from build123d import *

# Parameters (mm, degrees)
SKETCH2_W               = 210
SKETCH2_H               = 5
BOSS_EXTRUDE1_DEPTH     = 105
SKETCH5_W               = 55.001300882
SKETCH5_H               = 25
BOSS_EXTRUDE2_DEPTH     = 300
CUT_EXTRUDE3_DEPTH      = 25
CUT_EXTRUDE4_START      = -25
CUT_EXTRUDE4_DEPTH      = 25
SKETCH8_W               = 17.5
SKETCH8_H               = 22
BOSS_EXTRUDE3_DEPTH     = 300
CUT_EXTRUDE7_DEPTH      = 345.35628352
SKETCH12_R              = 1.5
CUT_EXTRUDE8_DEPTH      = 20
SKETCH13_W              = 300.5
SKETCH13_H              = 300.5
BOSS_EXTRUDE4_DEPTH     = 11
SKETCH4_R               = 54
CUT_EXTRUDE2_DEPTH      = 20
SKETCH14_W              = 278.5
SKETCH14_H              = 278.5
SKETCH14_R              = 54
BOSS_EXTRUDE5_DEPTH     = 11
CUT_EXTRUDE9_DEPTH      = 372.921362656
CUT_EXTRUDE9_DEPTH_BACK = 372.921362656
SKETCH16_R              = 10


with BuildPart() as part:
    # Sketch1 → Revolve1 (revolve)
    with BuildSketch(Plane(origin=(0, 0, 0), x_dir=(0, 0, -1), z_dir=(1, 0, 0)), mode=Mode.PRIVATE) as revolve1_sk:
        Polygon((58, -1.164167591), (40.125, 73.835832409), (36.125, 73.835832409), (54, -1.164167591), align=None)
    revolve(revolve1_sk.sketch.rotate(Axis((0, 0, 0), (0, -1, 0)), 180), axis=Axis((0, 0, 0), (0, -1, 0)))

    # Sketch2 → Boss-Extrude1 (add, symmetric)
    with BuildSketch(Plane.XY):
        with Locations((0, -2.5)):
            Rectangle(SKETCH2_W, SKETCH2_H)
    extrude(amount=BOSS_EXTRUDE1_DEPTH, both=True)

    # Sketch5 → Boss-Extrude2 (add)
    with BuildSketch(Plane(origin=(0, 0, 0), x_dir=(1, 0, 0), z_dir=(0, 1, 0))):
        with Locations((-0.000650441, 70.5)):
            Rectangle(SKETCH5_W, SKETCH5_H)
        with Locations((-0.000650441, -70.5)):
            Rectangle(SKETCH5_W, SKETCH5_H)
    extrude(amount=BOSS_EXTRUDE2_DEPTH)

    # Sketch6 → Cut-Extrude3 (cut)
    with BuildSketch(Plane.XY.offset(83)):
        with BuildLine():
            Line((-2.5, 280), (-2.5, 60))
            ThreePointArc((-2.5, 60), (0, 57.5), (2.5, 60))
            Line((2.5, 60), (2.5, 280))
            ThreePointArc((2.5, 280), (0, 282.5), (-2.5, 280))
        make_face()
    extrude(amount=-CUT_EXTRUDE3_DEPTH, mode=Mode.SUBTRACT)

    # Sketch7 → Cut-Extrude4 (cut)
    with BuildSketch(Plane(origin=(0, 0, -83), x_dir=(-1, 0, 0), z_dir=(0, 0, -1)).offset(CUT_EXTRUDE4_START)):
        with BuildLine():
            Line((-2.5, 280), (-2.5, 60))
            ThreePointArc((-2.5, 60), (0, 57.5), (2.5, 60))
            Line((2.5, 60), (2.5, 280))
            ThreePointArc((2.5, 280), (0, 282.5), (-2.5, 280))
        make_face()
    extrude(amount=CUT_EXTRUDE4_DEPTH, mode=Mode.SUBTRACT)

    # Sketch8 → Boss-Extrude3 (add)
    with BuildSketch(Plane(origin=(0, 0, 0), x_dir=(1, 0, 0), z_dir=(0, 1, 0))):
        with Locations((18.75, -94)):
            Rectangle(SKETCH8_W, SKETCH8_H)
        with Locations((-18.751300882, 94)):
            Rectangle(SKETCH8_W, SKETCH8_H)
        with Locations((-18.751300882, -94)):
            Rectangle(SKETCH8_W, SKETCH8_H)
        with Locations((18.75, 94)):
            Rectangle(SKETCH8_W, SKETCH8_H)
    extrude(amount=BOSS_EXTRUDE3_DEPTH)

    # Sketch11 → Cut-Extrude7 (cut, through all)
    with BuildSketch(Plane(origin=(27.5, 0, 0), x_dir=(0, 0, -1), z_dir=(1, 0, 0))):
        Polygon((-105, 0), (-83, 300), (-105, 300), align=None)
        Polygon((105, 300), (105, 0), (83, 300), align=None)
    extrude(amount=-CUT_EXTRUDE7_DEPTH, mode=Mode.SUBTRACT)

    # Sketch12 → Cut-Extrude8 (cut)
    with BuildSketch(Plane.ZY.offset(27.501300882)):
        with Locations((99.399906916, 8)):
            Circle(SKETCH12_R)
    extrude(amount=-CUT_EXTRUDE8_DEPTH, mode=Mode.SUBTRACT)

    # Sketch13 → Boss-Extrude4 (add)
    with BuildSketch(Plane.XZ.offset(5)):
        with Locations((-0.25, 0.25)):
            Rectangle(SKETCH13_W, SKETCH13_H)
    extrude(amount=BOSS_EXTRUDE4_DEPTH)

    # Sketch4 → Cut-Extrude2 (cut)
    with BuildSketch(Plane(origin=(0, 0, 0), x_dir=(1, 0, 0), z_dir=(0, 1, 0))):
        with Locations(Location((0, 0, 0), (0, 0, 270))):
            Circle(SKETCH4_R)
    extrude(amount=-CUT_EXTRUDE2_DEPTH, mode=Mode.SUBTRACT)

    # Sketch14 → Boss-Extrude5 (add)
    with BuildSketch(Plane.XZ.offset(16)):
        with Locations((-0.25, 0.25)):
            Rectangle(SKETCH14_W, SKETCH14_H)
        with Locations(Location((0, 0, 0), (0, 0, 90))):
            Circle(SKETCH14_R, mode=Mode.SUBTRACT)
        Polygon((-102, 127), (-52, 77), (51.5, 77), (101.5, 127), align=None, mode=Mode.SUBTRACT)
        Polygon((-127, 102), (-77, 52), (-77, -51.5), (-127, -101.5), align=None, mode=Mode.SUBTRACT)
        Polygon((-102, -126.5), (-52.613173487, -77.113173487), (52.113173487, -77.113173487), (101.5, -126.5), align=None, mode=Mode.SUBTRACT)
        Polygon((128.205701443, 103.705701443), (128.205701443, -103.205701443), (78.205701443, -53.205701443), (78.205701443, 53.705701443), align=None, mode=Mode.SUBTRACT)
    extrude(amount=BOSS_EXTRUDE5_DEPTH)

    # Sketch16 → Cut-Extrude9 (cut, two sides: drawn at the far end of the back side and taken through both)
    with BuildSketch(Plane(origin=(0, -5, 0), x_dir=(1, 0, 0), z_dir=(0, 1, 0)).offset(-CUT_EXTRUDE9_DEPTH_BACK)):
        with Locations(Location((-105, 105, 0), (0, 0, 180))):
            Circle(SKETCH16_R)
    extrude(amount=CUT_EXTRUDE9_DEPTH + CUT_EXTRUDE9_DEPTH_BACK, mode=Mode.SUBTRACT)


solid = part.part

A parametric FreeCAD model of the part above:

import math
import FreeCAD as App
import Part
import Sketcher


def add_polygon(sketch, points):
    """Adds a closed chain of lines whose ends are joined by coincident constraints."""
    first, n = sketch.GeometryCount, len(points)
    for a, b in zip(points, points[1:] + points[:1]):
        sketch.addGeometry(Part.LineSegment(App.Vector(*a, 0), App.Vector(*b, 0)), False)
    for i in range(n):
        sketch.addConstraint(Sketcher.Constraint("Coincident", first + i, 2, first + (i + 1) % n, 1))

doc = App.newDocument("Part")
body = doc.addObject("PartDesign::Body", "Body")

# Sketch on YZ plane
sketch1 = body.newObject("Sketcher::SketchObject", "Sketch")
sketch1.AttachmentSupport = (doc.getObject("YZ_Plane"), [""])
sketch1.MapMode = "FlatFace"
add_polygon(sketch1, [(-1.164168, -58), (73.835832, -40.125), (73.835832, -36.125), (-1.164168, -54)])  # lines 0-3
sketch1.addConstraint(Sketcher.Constraint("Vertical", 1))
sketch1.addConstraint(Sketcher.Constraint("Vertical", 3))
sketch1.addConstraint(Sketcher.Constraint("Parallel", 0, 2))
sketch1.addConstraint(Sketcher.Constraint("DistanceY", 1, 1, 1, 2, 4.0))
sketch1.addConstraint(Sketcher.Constraint("DistanceY", 2, 2, -1, 1, 54.0))
sketch1.addConstraint(Sketcher.Constraint("DistanceX", 2, 2, 0, 2, 75.0))
sketch1.addConstraint(Sketcher.Constraint("DistanceY", 0, 2, -1, 1, 40.125))
sketch1.addConstraint(Sketcher.Constraint("DistanceX", -1, 1, 0, 2, 73.835832))
revolution = body.newObject("PartDesign::Revolution", "Revolution")
revolution.Profile = sketch1
revolution.ReferenceAxis = (sketch1, ["H_Axis"])
revolution.Angle = 360

# Sketch on XY plane
sketch2 = body.newObject("Sketcher::SketchObject", "Sketch001")
sketch2.AttachmentSupport = (doc.getObject("XY_Plane"), [""])
sketch2.MapMode = "FlatFace"
add_polygon(sketch2, [(-105, 0), (-105, -5), (105, -5), (105, 0)])  # lines 0-3
sketch2.addConstraint(Sketcher.Constraint("Vertical", 0))
sketch2.addConstraint(Sketcher.Constraint("Horizontal", 1))
sketch2.addConstraint(Sketcher.Constraint("Vertical", 2))
sketch2.addConstraint(Sketcher.Constraint("Horizontal", 3))
sketch2.addConstraint(Sketcher.Constraint("Symmetric", 2, 2, 3, 2, -1, 1))
sketch2.addConstraint(Sketcher.Constraint("DistanceX", 1, 1, 1, 2, 210.0))
sketch2.addConstraint(Sketcher.Constraint("DistanceY", 0, 2, 0, 1, 5.0))
pad1 = body.newObject("PartDesign::Pad", "Pad")
pad1.Profile = sketch2
pad1.Length = 210
pad1.Midplane = True

# Sketch on XZ plane
sketch3 = body.newObject("Sketcher::SketchObject", "Sketch002")
sketch3.AttachmentSupport = (doc.getObject("XZ_Plane"), [""])
sketch3.MapMode = "FlatFace"
add_polygon(sketch3, [(-27.501301, -83), (-27.501301, -58), (27.5, -58), (27.5, -83)])  # lines 0-3
add_polygon(sketch3, [(-27.501301, 58), (-27.501301, 83), (27.5, 83), (27.5, 58)])  # lines 4-7
sketch3.addConstraint(Sketcher.Constraint("Vertical", 0))
sketch3.addConstraint(Sketcher.Constraint("Horizontal", 1))
sketch3.addConstraint(Sketcher.Constraint("Vertical", 2))
sketch3.addConstraint(Sketcher.Constraint("Horizontal", 3))
sketch3.addConstraint(Sketcher.Constraint("Vertical", 4))
sketch3.addConstraint(Sketcher.Constraint("Horizontal", 5))
sketch3.addConstraint(Sketcher.Constraint("Vertical", 6))
sketch3.addConstraint(Sketcher.Constraint("Horizontal", 7))
sketch3.addConstraint(Sketcher.Constraint("Symmetric", 3, 2, 4, 2, -1))
sketch3.addConstraint(Sketcher.Constraint("Symmetric", 1, 2, 6, 2, -1))
sketch3.addConstraint(Sketcher.Constraint("DistanceY", 0, 1, 0, 2, 25.0))
sketch3.addConstraint(Sketcher.Constraint("DistanceY", 0, 2, -1, 1, 58.0))
sketch3.addConstraint(Sketcher.Constraint("DistanceX", -1, 1, 1, 2, 27.5))
sketch3.addConstraint(Sketcher.Constraint("DistanceX", 1, 1, 1, 2, 55.001301))
pad2 = body.newObject("PartDesign::Pad", "Pad001")
pad2.Profile = sketch3
pad2.Length = 300
pad2.Reversed = True

# Sketch on XY plane
sketch4 = body.newObject("Sketcher::SketchObject", "Sketch003")
sketch4.AttachmentSupport = (doc.getObject("XY_Plane"), [""])
sketch4.MapMode = "FlatFace"
sketch4.AttachmentOffset = App.Placement(App.Vector(0, 0, 83), App.Rotation())
sketch4.addGeometry(Part.LineSegment(App.Vector(-2.5, 280, 0), App.Vector(-2.5, 60, 0)), False)
sketch4.addGeometry(Part.ArcOfCircle(Part.Circle(App.Vector(0, 60, 0), App.Vector(0, 0, 1), 2.5), math.radians(180), math.radians(360)), False)
sketch4.addGeometry(Part.LineSegment(App.Vector(2.5, 60, 0), App.Vector(2.5, 280, 0)), False)
sketch4.addGeometry(Part.ArcOfCircle(Part.Circle(App.Vector(0, 280, 0), App.Vector(0, 0, 1), 2.5), math.radians(0), math.radians(180)), False)
sketch4.addConstraint(Sketcher.Constraint("Tangent", 0, 2, 1, 1))
sketch4.addConstraint(Sketcher.Constraint("Tangent", 1, 2, 2, 1))
sketch4.addConstraint(Sketcher.Constraint("Tangent", 2, 2, 3, 1))
sketch4.addConstraint(Sketcher.Constraint("Tangent", 3, 2, 0, 1))
sketch4.addConstraint(Sketcher.Constraint("Vertical", 0))
sketch4.addConstraint(Sketcher.Constraint("Vertical", 2))
sketch4.addConstraint(Sketcher.Constraint("PointOnObject", 1, 3, -2))
sketch4.addConstraint(Sketcher.Constraint("Radius", 1, 2.5))
sketch4.addConstraint(Sketcher.Constraint("DistanceY", 0, 2, 0, 1, 220.0))
sketch4.addConstraint(Sketcher.Constraint("DistanceY", -1, 1, 1, 3, 60.0))
pocket1 = body.newObject("PartDesign::Pocket", "Pocket")
pocket1.Profile = sketch4
pocket1.Length = 25

# Sketch on XY plane
sketch5 = body.newObject("Sketcher::SketchObject", "Sketch004")
sketch5.AttachmentSupport = (doc.getObject("XY_Plane"), [""])
sketch5.MapMode = "FlatFace"
sketch5.AttachmentOffset = App.Placement(App.Vector(0, 0, -58), App.Rotation())
sketch5.addGeometry(Part.LineSegment(App.Vector(2.5, 280, 0), App.Vector(2.5, 60, 0)), False)
sketch5.addGeometry(Part.ArcOfCircle(Part.Circle(App.Vector(0, 60, 0), App.Vector(0, 0, 1), 2.5), math.radians(180), math.radians(360)), False)
sketch5.addGeometry(Part.LineSegment(App.Vector(-2.5, 60, 0), App.Vector(-2.5, 280, 0)), False)
sketch5.addGeometry(Part.ArcOfCircle(Part.Circle(App.Vector(0, 280, 0), App.Vector(0, 0, 1), 2.5), math.radians(0), math.radians(180)), False)
sketch5.addConstraint(Sketcher.Constraint("Tangent", 0, 2, 1, 2))
sketch5.addConstraint(Sketcher.Constraint("Tangent", 1, 1, 2, 1))
sketch5.addConstraint(Sketcher.Constraint("Tangent", 2, 2, 3, 2))
sketch5.addConstraint(Sketcher.Constraint("Tangent", 3, 1, 0, 1))
sketch5.addConstraint(Sketcher.Constraint("Vertical", 0))
sketch5.addConstraint(Sketcher.Constraint("Vertical", 2))
sketch5.addConstraint(Sketcher.Constraint("PointOnObject", 1, 3, -2))
sketch5.addConstraint(Sketcher.Constraint("Radius", 1, 2.5))
sketch5.addConstraint(Sketcher.Constraint("DistanceY", 0, 2, 0, 1, 220.0))
sketch5.addConstraint(Sketcher.Constraint("DistanceY", -1, 1, 1, 3, 60.0))
pocket2 = body.newObject("PartDesign::Pocket", "Pocket001")
pocket2.Profile = sketch5
pocket2.Length = 25

# Sketch on XZ plane
sketch6 = body.newObject("Sketcher::SketchObject", "Sketch005")
sketch6.AttachmentSupport = (doc.getObject("XZ_Plane"), [""])
sketch6.MapMode = "FlatFace"
add_polygon(sketch6, [(10, 83), (10, 105), (27.5, 105), (27.5, 83)])  # lines 0-3
add_polygon(sketch6, [(-27.501301, -105), (-27.501301, -83), (-10.001301, -83), (-10.001301, -105)])  # lines 4-7
add_polygon(sketch6, [(-27.501301, 83), (-27.501301, 105), (-10.001301, 105), (-10.001301, 83)])  # lines 8-11
add_polygon(sketch6, [(10, -105), (10, -83), (27.5, -83), (27.5, -105)])  # lines 12-15
sketch6.addConstraint(Sketcher.Constraint("Vertical", 0))
sketch6.addConstraint(Sketcher.Constraint("Horizontal", 1))
sketch6.addConstraint(Sketcher.Constraint("Vertical", 2))
sketch6.addConstraint(Sketcher.Constraint("Horizontal", 3))
sketch6.addConstraint(Sketcher.Constraint("Vertical", 4))
sketch6.addConstraint(Sketcher.Constraint("Horizontal", 5))
sketch6.addConstraint(Sketcher.Constraint("Vertical", 6))
sketch6.addConstraint(Sketcher.Constraint("Horizontal", 7))
sketch6.addConstraint(Sketcher.Constraint("Vertical", 8))
sketch6.addConstraint(Sketcher.Constraint("Horizontal", 9))
sketch6.addConstraint(Sketcher.Constraint("Vertical", 10))
sketch6.addConstraint(Sketcher.Constraint("Horizontal", 11))
sketch6.addConstraint(Sketcher.Constraint("Vertical", 12))
sketch6.addConstraint(Sketcher.Constraint("Horizontal", 13))
sketch6.addConstraint(Sketcher.Constraint("Vertical", 14))
sketch6.addConstraint(Sketcher.Constraint("Horizontal", 15))
sketch6.addConstraint(Sketcher.Constraint("Symmetric", 7, 2, 8, 2, -1))
sketch6.addConstraint(Sketcher.Constraint("Symmetric", 5, 2, 10, 2, -1))
sketch6.addConstraint(Sketcher.Constraint("Symmetric", 3, 2, 12, 2, -1))
sketch6.addConstraint(Sketcher.Constraint("Symmetric", 1, 2, 14, 2, -1))
sketch6.addConstraint(Sketcher.Constraint("Horizontal", 1, 2, 8, 2))
sketch6.addConstraint(Sketcher.Constraint("Horizontal", 3, 2, 10, 2))
sketch6.addConstraint(Sketcher.Constraint("Equal", 3, 5))
sketch6.addConstraint(Sketcher.Constraint("DistanceY", 0, 1, 0, 2, 22.0))
sketch6.addConstraint(Sketcher.Constraint("DistanceX", 1, 1, 1, 2, 17.5))
sketch6.addConstraint(Sketcher.Constraint("DistanceX", -1, 1, 0, 2, 10.0))
sketch6.addConstraint(Sketcher.Constraint("DistanceY", -1, 1, 0, 2, 105.0))
sketch6.addConstraint(Sketcher.Constraint("DistanceX", 4, 2, -1, 1, 27.501301))
pad3 = body.newObject("PartDesign::Pad", "Pad002")
pad3.Profile = sketch6
pad3.Length = 300
pad3.Reversed = True

# Sketch on YZ plane
sketch7 = body.newObject("Sketcher::SketchObject", "Sketch006")
sketch7.AttachmentSupport = (doc.getObject("YZ_Plane"), [""])
sketch7.MapMode = "FlatFace"
sketch7.AttachmentOffset = App.Placement(App.Vector(0, 0, 27.5), App.Rotation())
add_polygon(sketch7, [(0, 105), (300, 83), (300, 105)])  # lines 0-2
add_polygon(sketch7, [(0, -105), (300, -105), (300, -83)])  # lines 3-5
sketch7.addConstraint(Sketcher.Constraint("Vertical", 1))
sketch7.addConstraint(Sketcher.Constraint("Horizontal", 2))
sketch7.addConstraint(Sketcher.Constraint("Horizontal", 3))
sketch7.addConstraint(Sketcher.Constraint("Vertical", 4))
sketch7.addConstraint(Sketcher.Constraint("Symmetric", 2, 2, 5, 2, -1, 1))
sketch7.addConstraint(Sketcher.Constraint("Symmetric", 0, 2, 4, 2, -1))
sketch7.addConstraint(Sketcher.Constraint("PointOnObject", 2, 2, -2))
sketch7.addConstraint(Sketcher.Constraint("DistanceX", 2, 2, 2, 1, 300.0))
sketch7.addConstraint(Sketcher.Constraint("DistanceY", 1, 1, 1, 2, 22.0))
sketch7.addConstraint(Sketcher.Constraint("DistanceY", -1, 1, 0, 2, 83.0))
pocket3 = body.newObject("PartDesign::Pocket", "Pocket002")
pocket3.Profile = sketch7
pocket3.Type = "ThroughAll"

# Sketch on YZ plane
sketch8 = body.newObject("Sketcher::SketchObject", "Sketch007")
sketch8.AttachmentSupport = (doc.getObject("YZ_Plane"), [""])
sketch8.MapMode = "FlatFace"
sketch8.AttachmentOffset = App.Placement(App.Vector(0, 0, -27.501301), App.Rotation())
sketch8.addGeometry(Part.Circle(App.Vector(8, 99.399907, 0), App.Vector(0, 0, 1), 1.5), False)
sketch8.addConstraint(Sketcher.Constraint("Diameter", 0, 3.0))
sketch8.addConstraint(Sketcher.Constraint("DistanceX", -1, 1, 0, 3, 8.0))
sketch8.addConstraint(Sketcher.Constraint("DistanceY", -1, 1, 0, 3, 99.399907))
pocket4 = body.newObject("PartDesign::Pocket", "Pocket003")
pocket4.Profile = sketch8
pocket4.Length = 20
pocket4.Reversed = True

# Sketch on XZ plane
sketch9 = body.newObject("Sketcher::SketchObject", "Sketch008")
sketch9.AttachmentSupport = (doc.getObject("XZ_Plane"), [""])
sketch9.MapMode = "FlatFace"
sketch9.AttachmentOffset = App.Placement(App.Vector(0, 0, 5), App.Rotation())
add_polygon(sketch9, [(-150.5, 150.5), (-150.5, -150), (150, -150), (150, 150.5)])  # lines 0-3
sketch9.addConstraint(Sketcher.Constraint("Vertical", 0))
sketch9.addConstraint(Sketcher.Constraint("Horizontal", 1))
sketch9.addConstraint(Sketcher.Constraint("Vertical", 2))
sketch9.addConstraint(Sketcher.Constraint("Horizontal", 3))
sketch9.addConstraint(Sketcher.Constraint("Equal", 3, 0))
sketch9.addConstraint(Sketcher.Constraint("DistanceX", 1, 1, 1, 2, 300.5))
sketch9.addConstraint(Sketcher.Constraint("DistanceY", 0, 2, -1, 1, 150.0))
sketch9.addConstraint(Sketcher.Constraint("DistanceX", -1, 1, 1, 2, 150.0))
pad4 = body.newObject("PartDesign::Pad", "Pad003")
pad4.Profile = sketch9
pad4.Length = 11

# Sketch on XZ plane
sketch10 = body.newObject("Sketcher::SketchObject", "Sketch009")
sketch10.AttachmentSupport = (doc.getObject("XZ_Plane"), [""])
sketch10.MapMode = "FlatFace"
sketch10.addGeometry(Part.Circle(App.Vector(0, 0, 0), App.Vector(0, 0, 1), 54), False)
sketch10.addConstraint(Sketcher.Constraint("Coincident", 0, 3, -1, 1))
sketch10.addConstraint(Sketcher.Constraint("Diameter", 0, 108.0))
pocket5 = body.newObject("PartDesign::Pocket", "Pocket004")
pocket5.Profile = sketch10
pocket5.Length = 20
pocket5.Reversed = True

# Sketch on XZ plane
sketch11 = body.newObject("Sketcher::SketchObject", "Sketch010")
sketch11.AttachmentSupport = (doc.getObject("XZ_Plane"), [""])
sketch11.MapMode = "FlatFace"
sketch11.AttachmentOffset = App.Placement(App.Vector(0, 0, 16), App.Rotation())
add_polygon(sketch11, [(-139.5, 139.5), (-139.5, -139), (139, -139), (139, 139.5)])  # lines 0-3
add_polygon(sketch11, [(101.5, -126.5), (-102, -126.5), (-52.613173, -77.113173), (52.113173, -77.113173)])  # lines 4-7
sketch11.addGeometry(Part.Circle(App.Vector(0, 0, 0), App.Vector(0, 0, 1), 54), False)  # 8
add_polygon(sketch11, [(-127, -101.5), (-127, 102), (-77, 52), (-77, -51.5)])  # lines 9-12
add_polygon(sketch11, [(-52, 77), (-102, 127), (101.5, 127), (51.5, 77)])  # lines 13-16
add_polygon(sketch11, [(78.205701, 53.705701), (128.205701, 103.705701), (128.205701, -103.205701), (78.205701, -53.205701)])  # lines 17-20
sketch11.addConstraint(Sketcher.Constraint("Vertical", 0))
sketch11.addConstraint(Sketcher.Constraint("Horizontal", 1))
sketch11.addConstraint(Sketcher.Constraint("Vertical", 2))
sketch11.addConstraint(Sketcher.Constraint("Horizontal", 3))
sketch11.addConstraint(Sketcher.Constraint("Horizontal", 4))
sketch11.addConstraint(Sketcher.Constraint("Horizontal", 6))
sketch11.addConstraint(Sketcher.Constraint("Vertical", 9))
sketch11.addConstraint(Sketcher.Constraint("Vertical", 11))
sketch11.addConstraint(Sketcher.Constraint("Horizontal", 14))
sketch11.addConstraint(Sketcher.Constraint("Horizontal", 16))
sketch11.addConstraint(Sketcher.Constraint("Vertical", 18))
sketch11.addConstraint(Sketcher.Constraint("Vertical", 20))
sketch11.addConstraint(Sketcher.Constraint("Coincident", 8, 3, -1, 1))
sketch11.addConstraint(Sketcher.Constraint("Perpendicular", 5, 7))
sketch11.addConstraint(Sketcher.Constraint("Parallel", 7, 10))
sketch11.addConstraint(Sketcher.Constraint("Perpendicular", 10, 12))
sketch11.addConstraint(Sketcher.Constraint("Perpendicular", 12, 13))
sketch11.addConstraint(Sketcher.Constraint("Perpendicular", 13, 15))
sketch11.addConstraint(Sketcher.Constraint("Parallel", 15, 17))
sketch11.addConstraint(Sketcher.Constraint("Perpendicular", 17, 19))
sketch11.addConstraint(Sketcher.Constraint("Vertical", 4, 2, 13, 2))
sketch11.addConstraint(Sketcher.Constraint("Vertical", 7, 2, 14, 2))
sketch11.addConstraint(Sketcher.Constraint("Equal", 3, 0))
sketch11.addConstraint(Sketcher.Constraint("Equal", 14, 9))
sketch11.addConstraint(Sketcher.Constraint("Equal", 16, 11))
sketch11.addConstraint(Sketcher.Constraint("Equal", 5, 7))
sketch11.addConstraint(Sketcher.Constraint("Equal", 15, 17))
sketch11.addConstraint(Sketcher.Constraint("Diameter", 8, 108.0))
sketch11.addConstraint(Sketcher.Constraint("DistanceX", 1, 1, 1, 2, 278.5))
sketch11.addConstraint(Sketcher.Constraint("DistanceX", 4, 2, 4, 1, 203.5))
sketch11.addConstraint(Sketcher.Constraint("DistanceX", 16, 2, 16, 1, 103.5))
sketch11.addConstraint(Sketcher.Constraint("DistanceY", 0, 2, -1, 1, 139.0))
sketch11.addConstraint(Sketcher.Constraint("DistanceX", -1, 1, 1, 2, 139.0))
sketch11.addConstraint(Sketcher.Constraint("DistanceX", 4, 2, -1, 1, 102.0))
sketch11.addConstraint(Sketcher.Constraint("DistanceX", 9, 2, -1, 1, 127.0))
sketch11.addConstraint(Sketcher.Constraint("DistanceY", -1, 1, 9, 2, 102.0))
sketch11.addConstraint(Sketcher.Constraint("DistanceY", -1, 1, 13, 2, 127.0))
sketch11.addConstraint(Sketcher.Constraint("DistanceY", 4, 2, 3, 2, 266.0))
sketch11.addConstraint(Sketcher.Constraint("DistanceX", -1, 1, 17, 2, 128.205701))
sketch11.addConstraint(Sketcher.Constraint("DistanceY", -1, 1, 17, 2, 103.705701))
sketch11.addConstraint(Sketcher.Constraint("DistanceY", 18, 2, -1, 1, 103.205701))
sketch11.addConstraint(Sketcher.Constraint("Distance", 5, 69.84352))
pad5 = body.newObject("PartDesign::Pad", "Pad004")
pad5.Profile = sketch11
pad5.Length = 11

# Sketch on XZ plane
sketch12 = body.newObject("Sketcher::SketchObject", "Sketch011")
sketch12.AttachmentSupport = (doc.getObject("XZ_Plane"), [""])
sketch12.MapMode = "FlatFace"
sketch12.AttachmentOffset = App.Placement(App.Vector(0, 0, 5), App.Rotation())
sketch12.addGeometry(Part.Circle(App.Vector(-105, -105, 0), App.Vector(0, 0, 1), 10), False)
sketch12.addConstraint(Sketcher.Constraint("Diameter", 0, 20.0))
sketch12.addConstraint(Sketcher.Constraint("DistanceX", 0, 3, -1, 1, 105.0))
sketch12.addConstraint(Sketcher.Constraint("DistanceY", 0, 3, -1, 1, 105.0))
pocket6 = body.newObject("PartDesign::Pocket", "Pocket005")
pocket6.Profile = sketch12
pocket6.Type = "ThroughAll"
pocket6.Midplane = True

doc.recompute()
